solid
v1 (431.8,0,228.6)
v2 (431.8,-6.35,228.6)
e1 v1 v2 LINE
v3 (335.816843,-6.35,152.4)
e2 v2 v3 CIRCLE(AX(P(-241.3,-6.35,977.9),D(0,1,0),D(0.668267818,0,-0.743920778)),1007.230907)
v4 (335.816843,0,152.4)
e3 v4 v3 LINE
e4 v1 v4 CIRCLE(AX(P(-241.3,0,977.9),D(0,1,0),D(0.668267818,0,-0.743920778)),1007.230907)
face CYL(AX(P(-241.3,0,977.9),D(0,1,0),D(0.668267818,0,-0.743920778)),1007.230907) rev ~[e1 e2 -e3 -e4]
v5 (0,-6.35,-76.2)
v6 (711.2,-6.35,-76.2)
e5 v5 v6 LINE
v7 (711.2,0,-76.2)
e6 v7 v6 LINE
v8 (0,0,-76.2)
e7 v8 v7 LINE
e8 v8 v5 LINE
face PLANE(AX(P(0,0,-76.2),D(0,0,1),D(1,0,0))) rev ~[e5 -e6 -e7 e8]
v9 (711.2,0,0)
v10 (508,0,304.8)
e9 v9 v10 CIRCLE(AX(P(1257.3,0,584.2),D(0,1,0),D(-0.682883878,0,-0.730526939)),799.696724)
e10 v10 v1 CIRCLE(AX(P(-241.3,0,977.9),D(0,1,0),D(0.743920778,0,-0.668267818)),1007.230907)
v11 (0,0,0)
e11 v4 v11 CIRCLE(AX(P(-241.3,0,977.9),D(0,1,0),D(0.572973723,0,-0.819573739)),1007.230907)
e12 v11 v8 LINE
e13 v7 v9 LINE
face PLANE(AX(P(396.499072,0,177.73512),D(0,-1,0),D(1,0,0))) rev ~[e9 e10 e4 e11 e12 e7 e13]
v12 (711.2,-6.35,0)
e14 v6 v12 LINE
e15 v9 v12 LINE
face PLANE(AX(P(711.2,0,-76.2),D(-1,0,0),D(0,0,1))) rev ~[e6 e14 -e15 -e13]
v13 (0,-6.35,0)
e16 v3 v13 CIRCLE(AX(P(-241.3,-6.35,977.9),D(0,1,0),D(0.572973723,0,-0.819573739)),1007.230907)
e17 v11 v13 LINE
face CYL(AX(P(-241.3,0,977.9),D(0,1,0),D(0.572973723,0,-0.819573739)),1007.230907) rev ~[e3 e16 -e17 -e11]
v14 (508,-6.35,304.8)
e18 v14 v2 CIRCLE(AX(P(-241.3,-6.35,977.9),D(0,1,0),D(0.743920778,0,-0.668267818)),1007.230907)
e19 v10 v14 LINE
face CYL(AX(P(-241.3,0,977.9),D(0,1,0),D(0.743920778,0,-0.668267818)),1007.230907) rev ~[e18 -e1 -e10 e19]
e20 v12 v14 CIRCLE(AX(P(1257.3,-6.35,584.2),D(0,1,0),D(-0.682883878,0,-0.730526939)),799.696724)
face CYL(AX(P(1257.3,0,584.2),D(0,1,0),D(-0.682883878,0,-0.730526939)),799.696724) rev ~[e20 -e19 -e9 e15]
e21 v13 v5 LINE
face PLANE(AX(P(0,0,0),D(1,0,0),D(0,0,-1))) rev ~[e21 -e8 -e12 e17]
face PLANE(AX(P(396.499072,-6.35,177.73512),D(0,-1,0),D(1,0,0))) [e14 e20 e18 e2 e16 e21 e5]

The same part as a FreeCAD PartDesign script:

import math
import FreeCAD as App
import Part
import Sketcher
from FreeCAD import Vector
Q = App.Units.Quantity

doc = App.newDocument("Part")
body = doc.addObject("PartDesign::Body", "Body")

# Sketch on XZ plane
sketch1 = doc.addObject("Sketcher::SketchObject", "Sketch")
body.addObject(sketch1)
sketch1.AttachmentSupport = (doc.XZ_Plane, [""])
sketch1.MapMode = "FlatFace"
sketch1.addGeometry([
    Part.ArcOfCircle(Part.Circle(Vector(-241.3, 977.9, 0), Vector(0, 0, 1), 1007.230907), math.radians(-55.042146), math.radians(-48.066486)),  # 0
    Part.ArcOfCircle(Part.Circle(Vector(-241.3, 977.9, 0), Vector(0, 0, 1), 1007.230907), math.radians(-76.138972), math.radians(-55.042146)),  # 1
    Part.LineSegment(Vector(0, 0, 0), Vector(0, -76.2, 0)),  # 2
    Part.LineSegment(Vector(0, -76.2, 0), Vector(711.2, -76.2, 0)),  # 3
    Part.LineSegment(Vector(711.2, -76.2, 0), Vector(711.2, 0, 0)),  # 4
    Part.ArcOfCircle(Part.Circle(Vector(1257.3, 584.2, 0), Vector(0, 0, 1), 799.696724), math.radians(-159.550452), math.radians(-133.069413)),  # 5
    Part.ArcOfCircle(Part.Circle(Vector(-241.3, 977.9, 0), Vector(0, 0, 1), 1007.230907), math.radians(-48.066486), math.radians(-41.933514)),  # 6
], False)
sketch1.addConstraint([
    Sketcher.Constraint("Coincident", 0, 1, 1, 2),
    Sketcher.Constraint("Coincident", 1, 1, 2, 1),
    Sketcher.Constraint("Coincident", 2, 2, 3, 1),
    Sketcher.Constraint("Coincident", 3, 2, 4, 1),
    Sketcher.Constraint("Coincident", 4, 2, 5, 2),
    Sketcher.Constraint("Coincident", 5, 1, 6, 2),
    Sketcher.Constraint("Coincident", 6, 1, 0, 2),
    Sketcher.Constraint("Vertical", 2),
    Sketcher.Constraint("Horizontal", 3),
    Sketcher.Constraint("Vertical", 4),
    Sketcher.Constraint("Coincident", 1, 3, 0, 3),
    Sketcher.Constraint("Coincident", 6, 3, 0, 3),
    Sketcher.Constraint("PointOnObject", 2, 2, -2),
    Sketcher.Constraint("PointOnObject", 4, 2, -1),
    Sketcher.Constraint("Horizontal", 1, 1, 4, 2),
    Sketcher.Constraint("DistanceX", 3, 1, 3, 2, Q("28 in")),
    Sketcher.Constraint("DistanceY", 2, 2, 2, 1, Q("3 in")),
    Sketcher.Constraint("DistanceY", -1, 1, 5, 3, Q("23 in")),
    Sketcher.Constraint("DistanceY", -1, 1, 0, 1, Q("6 in")),
    Sketcher.Constraint("DistanceX", -1, 1, 6, 1, Q("17 in")),
    Sketcher.Constraint("DistanceX", 0, 3, 5, 3, Q("59 in")),
    Sketcher.Constraint("DistanceX", 0, 3, -1, 1, Q("9.5 in")),
    Sketcher.Constraint("DistanceY", -1, 1, 0, 3, Q("38.5 in")),
])
pad1 = doc.addObject("PartDesign::Pad", "Pad")
body.addObject(pad1)
pad1.Profile = sketch1
pad1.Length = Q("0.25 in")

doc.recompute()
